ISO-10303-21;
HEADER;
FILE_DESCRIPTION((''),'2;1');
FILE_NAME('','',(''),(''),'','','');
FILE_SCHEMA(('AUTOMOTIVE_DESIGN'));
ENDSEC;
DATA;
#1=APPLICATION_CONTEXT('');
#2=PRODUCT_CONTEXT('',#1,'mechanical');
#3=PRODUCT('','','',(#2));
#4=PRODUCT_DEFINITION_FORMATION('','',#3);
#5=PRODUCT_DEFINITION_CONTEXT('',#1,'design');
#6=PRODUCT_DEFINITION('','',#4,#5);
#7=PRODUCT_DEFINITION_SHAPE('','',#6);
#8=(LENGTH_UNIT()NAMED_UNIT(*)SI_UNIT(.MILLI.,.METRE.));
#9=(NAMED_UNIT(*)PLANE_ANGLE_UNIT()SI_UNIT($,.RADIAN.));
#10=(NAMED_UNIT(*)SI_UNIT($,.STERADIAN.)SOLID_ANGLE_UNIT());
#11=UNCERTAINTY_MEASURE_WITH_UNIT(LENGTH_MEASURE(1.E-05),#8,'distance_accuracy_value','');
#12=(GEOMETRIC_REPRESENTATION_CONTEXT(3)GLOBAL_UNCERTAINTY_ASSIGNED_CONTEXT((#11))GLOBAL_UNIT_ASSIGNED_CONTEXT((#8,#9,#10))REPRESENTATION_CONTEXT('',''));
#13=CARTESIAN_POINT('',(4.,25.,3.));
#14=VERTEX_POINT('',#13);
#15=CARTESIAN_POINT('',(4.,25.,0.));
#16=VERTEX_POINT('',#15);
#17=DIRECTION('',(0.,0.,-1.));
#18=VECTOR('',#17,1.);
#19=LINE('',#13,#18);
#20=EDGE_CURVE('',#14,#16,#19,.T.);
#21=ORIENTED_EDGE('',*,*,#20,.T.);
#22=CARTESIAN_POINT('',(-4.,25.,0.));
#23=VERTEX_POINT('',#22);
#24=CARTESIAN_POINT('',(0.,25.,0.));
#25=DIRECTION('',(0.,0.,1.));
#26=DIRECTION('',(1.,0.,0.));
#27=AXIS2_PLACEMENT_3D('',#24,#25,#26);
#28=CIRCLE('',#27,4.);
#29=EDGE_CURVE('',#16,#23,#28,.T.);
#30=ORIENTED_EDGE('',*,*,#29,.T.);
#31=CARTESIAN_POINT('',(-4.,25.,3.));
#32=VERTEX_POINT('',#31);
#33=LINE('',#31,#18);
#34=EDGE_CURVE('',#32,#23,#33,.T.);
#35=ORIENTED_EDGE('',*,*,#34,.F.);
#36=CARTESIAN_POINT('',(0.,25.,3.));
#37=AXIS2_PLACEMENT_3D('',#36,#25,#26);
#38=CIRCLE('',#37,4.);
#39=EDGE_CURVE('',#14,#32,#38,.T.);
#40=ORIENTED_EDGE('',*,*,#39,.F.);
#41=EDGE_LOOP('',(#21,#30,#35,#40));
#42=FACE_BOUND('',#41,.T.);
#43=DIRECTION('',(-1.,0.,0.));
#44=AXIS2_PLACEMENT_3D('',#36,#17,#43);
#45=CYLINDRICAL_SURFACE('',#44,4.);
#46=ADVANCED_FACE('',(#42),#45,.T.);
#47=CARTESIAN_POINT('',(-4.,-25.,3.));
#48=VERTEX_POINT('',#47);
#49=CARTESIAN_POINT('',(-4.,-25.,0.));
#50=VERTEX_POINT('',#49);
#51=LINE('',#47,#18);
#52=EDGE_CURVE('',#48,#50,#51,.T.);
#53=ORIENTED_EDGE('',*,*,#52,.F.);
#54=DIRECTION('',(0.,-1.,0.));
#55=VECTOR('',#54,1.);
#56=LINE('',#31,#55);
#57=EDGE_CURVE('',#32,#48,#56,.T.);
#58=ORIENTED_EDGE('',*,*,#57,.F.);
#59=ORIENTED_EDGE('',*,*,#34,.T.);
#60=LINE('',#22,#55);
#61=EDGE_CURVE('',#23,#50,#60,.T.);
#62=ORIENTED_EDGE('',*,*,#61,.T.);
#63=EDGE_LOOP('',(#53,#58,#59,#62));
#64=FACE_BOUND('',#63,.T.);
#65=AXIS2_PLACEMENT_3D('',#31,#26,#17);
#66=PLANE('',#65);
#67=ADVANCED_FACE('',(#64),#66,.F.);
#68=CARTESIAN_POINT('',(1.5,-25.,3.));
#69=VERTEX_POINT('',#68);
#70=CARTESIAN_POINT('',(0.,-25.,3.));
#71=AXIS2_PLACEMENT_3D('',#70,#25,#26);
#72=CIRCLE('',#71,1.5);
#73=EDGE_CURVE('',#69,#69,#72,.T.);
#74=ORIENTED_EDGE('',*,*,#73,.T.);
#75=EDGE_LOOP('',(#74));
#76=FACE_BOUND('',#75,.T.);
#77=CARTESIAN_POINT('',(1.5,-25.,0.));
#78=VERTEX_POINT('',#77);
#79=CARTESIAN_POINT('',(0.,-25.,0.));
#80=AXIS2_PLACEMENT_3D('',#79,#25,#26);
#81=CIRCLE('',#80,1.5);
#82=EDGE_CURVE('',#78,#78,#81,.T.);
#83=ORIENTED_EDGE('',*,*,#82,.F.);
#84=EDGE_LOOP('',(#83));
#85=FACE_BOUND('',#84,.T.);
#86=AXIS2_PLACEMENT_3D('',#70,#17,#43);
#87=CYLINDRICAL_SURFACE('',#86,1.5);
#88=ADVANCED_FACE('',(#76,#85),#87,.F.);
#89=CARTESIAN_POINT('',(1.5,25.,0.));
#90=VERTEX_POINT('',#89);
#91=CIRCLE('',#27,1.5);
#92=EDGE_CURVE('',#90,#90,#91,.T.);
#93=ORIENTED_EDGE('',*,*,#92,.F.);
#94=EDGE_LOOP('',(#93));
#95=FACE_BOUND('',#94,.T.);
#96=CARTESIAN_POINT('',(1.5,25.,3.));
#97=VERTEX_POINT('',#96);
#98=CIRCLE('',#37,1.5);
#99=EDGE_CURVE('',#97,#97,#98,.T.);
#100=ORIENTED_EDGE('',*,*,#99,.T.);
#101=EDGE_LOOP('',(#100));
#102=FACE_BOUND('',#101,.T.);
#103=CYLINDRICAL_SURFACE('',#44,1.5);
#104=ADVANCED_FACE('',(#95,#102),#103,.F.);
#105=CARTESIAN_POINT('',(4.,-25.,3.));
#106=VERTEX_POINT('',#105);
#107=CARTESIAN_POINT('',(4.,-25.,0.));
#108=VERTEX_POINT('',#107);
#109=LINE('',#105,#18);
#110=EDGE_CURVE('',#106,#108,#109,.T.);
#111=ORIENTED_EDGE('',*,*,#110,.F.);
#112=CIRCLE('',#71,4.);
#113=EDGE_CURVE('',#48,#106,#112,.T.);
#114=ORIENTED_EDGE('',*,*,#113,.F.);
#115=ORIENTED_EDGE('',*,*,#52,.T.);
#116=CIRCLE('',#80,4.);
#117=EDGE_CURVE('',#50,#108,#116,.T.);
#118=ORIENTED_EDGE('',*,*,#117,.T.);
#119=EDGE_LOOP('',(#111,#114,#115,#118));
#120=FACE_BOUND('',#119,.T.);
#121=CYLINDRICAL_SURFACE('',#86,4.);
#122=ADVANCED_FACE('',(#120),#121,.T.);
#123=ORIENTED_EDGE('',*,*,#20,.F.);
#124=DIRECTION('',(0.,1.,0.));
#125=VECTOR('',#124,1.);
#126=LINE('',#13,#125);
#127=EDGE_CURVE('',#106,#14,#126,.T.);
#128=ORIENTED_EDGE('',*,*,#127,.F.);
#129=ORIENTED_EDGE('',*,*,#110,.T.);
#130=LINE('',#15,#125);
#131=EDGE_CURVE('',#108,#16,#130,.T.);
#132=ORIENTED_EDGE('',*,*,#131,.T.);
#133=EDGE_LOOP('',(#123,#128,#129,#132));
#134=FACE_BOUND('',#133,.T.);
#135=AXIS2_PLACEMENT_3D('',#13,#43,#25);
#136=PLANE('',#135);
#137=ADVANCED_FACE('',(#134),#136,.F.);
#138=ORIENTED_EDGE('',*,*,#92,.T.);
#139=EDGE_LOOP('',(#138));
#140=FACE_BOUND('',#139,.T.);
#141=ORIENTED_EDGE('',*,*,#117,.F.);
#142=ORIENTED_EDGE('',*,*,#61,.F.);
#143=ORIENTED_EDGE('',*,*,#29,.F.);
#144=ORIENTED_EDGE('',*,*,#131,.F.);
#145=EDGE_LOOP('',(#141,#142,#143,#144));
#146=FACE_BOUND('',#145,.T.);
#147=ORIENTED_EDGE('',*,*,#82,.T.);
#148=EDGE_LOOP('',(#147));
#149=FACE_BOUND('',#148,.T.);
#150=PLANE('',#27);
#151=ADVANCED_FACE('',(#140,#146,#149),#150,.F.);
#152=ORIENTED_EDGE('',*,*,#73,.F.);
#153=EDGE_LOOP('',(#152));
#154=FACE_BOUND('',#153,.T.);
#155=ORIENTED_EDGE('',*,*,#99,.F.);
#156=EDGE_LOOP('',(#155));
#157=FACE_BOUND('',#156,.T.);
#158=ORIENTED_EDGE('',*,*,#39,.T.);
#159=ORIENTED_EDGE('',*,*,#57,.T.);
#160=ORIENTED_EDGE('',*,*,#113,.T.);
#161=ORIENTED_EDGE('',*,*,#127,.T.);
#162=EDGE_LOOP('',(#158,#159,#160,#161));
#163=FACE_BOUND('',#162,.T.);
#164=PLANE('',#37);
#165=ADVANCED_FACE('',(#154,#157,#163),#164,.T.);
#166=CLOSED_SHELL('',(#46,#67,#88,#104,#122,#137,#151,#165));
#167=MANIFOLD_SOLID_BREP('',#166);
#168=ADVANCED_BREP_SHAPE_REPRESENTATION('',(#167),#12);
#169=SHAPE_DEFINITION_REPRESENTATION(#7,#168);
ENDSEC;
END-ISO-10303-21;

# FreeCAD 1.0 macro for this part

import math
import FreeCAD as App
import Part
import Sketcher

V = App.Vector

doc = App.newDocument("Part")
body = doc.addObject("PartDesign::Body", "Body")

# Sketch on XY plane
sketch1 = body.newObject("Sketcher::SketchObject", "Sketch")
sketch1.AttachmentSupport = (doc.getObject("XY_Plane"), [""])
sketch1.MapMode = "FlatFace"
sketch1.addGeometry([
    Part.LineSegment(V(4, -25, 0), V(4, 25, 0)),  # 0
    Part.ArcOfCircle(Part.Circle(V(0, 25, 0), V(0, 0, 1), 4), math.radians(0), math.radians(180)),  # 1
    Part.LineSegment(V(-4, 25, 0), V(-4, -25, 0)),  # 2
    Part.ArcOfCircle(Part.Circle(V(0, -25, 0), V(0, 0, 1), 4), math.radians(180), math.radians(360)),  # 3
    Part.Circle(V(0, -25, 0), V(0, 0, 1), 1.5),  # 4
    Part.Circle(V(0, 25, 0), V(0, 0, 1), 1.5),  # 5
], False)
sketch1.addConstraint([
    Sketcher.Constraint("Tangent", 0, 2, 1, 1),
    Sketcher.Constraint("Tangent", 1, 2, 2, 1),
    Sketcher.Constraint("Tangent", 2, 2, 3, 1),
    Sketcher.Constraint("Tangent", 3, 2, 0, 1),
    Sketcher.Constraint("Vertical", 0),
    Sketcher.Constraint("Vertical", 2),
    Sketcher.Constraint("Coincident", 4, 3, 3, 3),
    Sketcher.Constraint("Coincident", 5, 3, 1, 3),
    Sketcher.Constraint("Equal", 4, 5),
    Sketcher.Constraint("Symmetric", 1, 3, 3, 3, -1, 1),
    Sketcher.Constraint("Diameter", 4, 3.0),
    Sketcher.Constraint("Radius", 1, 4.0),
    Sketcher.Constraint("DistanceY", 0, 1, 0, 2, 50.0),
])
pad1 = body.newObject("PartDesign::Pad", "Pad")
pad1.Profile = sketch1
pad1.Length = 3

doc.recompute()
